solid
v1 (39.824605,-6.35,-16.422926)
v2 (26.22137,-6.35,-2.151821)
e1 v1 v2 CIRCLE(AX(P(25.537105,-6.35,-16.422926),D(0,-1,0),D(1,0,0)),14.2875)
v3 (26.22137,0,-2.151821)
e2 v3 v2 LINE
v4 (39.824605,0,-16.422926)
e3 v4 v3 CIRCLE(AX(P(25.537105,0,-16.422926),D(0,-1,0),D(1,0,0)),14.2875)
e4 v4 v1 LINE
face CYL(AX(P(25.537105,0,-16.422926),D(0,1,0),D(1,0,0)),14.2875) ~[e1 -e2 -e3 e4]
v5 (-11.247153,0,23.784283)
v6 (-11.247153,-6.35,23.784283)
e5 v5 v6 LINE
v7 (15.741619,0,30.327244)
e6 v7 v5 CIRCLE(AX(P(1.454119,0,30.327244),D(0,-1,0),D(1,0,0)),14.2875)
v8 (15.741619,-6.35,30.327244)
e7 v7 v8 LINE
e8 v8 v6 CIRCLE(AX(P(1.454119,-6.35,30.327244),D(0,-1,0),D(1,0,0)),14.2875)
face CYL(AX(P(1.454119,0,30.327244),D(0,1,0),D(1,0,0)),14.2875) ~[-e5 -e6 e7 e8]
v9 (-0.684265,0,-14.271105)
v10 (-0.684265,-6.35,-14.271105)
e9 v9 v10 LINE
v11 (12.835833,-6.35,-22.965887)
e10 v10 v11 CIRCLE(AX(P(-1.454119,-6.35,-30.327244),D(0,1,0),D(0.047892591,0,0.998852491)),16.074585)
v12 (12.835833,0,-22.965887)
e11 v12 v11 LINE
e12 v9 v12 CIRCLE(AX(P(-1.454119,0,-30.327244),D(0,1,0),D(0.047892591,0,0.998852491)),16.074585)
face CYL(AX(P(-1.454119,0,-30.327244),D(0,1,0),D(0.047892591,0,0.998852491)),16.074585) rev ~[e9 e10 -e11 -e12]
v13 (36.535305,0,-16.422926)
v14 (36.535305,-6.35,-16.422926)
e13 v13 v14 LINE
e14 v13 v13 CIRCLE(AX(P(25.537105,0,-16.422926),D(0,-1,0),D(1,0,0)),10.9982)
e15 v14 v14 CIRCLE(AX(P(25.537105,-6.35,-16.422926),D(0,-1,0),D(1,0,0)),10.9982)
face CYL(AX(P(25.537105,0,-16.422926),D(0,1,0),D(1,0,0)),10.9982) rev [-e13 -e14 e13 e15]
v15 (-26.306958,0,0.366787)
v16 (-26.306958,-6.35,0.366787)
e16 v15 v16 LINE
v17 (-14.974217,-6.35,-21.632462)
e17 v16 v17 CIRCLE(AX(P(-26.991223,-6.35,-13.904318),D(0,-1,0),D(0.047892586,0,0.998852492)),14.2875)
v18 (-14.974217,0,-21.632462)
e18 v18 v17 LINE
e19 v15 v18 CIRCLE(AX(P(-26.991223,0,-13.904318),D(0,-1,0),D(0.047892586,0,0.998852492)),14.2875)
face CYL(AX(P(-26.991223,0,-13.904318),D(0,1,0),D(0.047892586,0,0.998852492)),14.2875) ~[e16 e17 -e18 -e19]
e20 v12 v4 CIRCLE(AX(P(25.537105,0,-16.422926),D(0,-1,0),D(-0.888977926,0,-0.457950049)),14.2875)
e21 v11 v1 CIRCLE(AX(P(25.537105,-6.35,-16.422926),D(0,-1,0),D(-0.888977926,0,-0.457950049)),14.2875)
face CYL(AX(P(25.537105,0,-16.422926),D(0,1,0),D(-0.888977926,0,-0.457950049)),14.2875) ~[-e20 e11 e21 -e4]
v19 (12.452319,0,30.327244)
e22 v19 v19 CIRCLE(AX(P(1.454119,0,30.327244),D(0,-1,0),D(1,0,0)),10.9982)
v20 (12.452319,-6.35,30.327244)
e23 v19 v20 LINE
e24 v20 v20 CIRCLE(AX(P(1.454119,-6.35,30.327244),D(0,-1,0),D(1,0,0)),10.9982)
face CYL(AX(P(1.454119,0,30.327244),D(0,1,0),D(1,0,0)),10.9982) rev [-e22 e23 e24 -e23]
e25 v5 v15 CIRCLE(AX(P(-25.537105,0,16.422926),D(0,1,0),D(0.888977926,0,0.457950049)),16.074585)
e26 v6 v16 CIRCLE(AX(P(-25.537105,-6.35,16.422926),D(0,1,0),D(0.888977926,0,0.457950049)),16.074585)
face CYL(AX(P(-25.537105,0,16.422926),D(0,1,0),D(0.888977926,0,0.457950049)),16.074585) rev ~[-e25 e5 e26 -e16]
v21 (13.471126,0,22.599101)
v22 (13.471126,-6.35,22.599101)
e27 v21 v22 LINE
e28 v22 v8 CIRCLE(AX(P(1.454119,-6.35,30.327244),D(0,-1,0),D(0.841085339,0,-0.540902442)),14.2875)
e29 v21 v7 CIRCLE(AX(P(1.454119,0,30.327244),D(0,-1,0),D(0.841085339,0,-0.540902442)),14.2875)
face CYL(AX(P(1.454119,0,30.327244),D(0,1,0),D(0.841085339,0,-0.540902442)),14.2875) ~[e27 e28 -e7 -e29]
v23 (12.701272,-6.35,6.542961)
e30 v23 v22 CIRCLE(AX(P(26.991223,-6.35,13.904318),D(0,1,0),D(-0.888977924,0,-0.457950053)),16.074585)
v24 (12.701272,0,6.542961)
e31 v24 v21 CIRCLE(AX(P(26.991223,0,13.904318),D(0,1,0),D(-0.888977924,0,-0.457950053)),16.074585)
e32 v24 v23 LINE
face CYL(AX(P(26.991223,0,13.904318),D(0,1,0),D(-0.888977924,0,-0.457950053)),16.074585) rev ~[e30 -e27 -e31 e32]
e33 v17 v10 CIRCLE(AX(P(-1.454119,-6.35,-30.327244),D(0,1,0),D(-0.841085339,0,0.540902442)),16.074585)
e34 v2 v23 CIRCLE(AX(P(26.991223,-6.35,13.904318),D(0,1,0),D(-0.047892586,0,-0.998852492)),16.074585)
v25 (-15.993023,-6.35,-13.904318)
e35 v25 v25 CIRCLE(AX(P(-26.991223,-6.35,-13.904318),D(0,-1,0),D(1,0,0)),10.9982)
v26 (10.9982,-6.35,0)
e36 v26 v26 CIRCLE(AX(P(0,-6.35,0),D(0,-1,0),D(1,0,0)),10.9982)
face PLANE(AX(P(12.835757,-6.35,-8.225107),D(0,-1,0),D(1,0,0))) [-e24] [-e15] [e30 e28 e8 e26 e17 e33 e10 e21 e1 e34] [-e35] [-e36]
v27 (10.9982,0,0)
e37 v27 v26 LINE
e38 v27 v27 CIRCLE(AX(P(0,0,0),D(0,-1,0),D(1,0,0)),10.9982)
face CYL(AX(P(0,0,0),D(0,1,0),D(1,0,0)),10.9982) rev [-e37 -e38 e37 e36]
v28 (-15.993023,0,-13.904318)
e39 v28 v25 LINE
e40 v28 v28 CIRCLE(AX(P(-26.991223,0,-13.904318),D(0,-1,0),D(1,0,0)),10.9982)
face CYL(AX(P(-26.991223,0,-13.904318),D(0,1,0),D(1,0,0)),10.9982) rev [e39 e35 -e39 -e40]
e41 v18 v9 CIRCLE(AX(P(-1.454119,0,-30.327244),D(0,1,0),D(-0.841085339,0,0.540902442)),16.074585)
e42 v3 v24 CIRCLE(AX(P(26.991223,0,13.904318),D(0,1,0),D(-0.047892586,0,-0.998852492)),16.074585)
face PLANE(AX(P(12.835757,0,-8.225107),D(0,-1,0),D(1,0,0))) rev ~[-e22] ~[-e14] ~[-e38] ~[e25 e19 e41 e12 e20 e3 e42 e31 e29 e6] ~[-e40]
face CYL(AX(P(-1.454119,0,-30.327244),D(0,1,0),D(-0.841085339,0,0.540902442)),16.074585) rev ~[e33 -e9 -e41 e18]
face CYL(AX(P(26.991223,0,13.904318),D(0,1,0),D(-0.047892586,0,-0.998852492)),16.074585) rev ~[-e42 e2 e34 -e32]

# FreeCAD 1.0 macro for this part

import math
import FreeCAD as App
import Part
import Sketcher
from FreeCAD import Vector
Q = App.Units.Quantity

doc = App.newDocument("Part")
body = doc.addObject("PartDesign::Body", "Body")

# Sketch on XZ plane
sketch1 = doc.addObject("Sketcher::SketchObject", "Sketch")
body.addObject(sketch1)
sketch1.AttachmentSupport = (doc.XZ_Plane, [""])
sketch1.MapMode = "FlatFace"
sketch1.addGeometry(Part.ArcOfCircle(Part.Circle(Vector(26.991223, 13.904318, 0), Vector(0, 0, 1), 16.074585), math.radians(-152.745093), math.radians(-92.745093)), False)
sketch1.addGeometry(Part.ArcOfCircle(Part.Circle(Vector(26.991223, 13.904318, 0), Vector(0, 0, 1), 16.074585), math.radians(147.254907), math.radians(207.254907)), False)
sketch1.addGeometry(Part.ArcOfCircle(Part.Circle(Vector(1.454119, 30.327244, 0), Vector(0, 0, 1), 14.2875), math.radians(-32.745093), math.radians(0)), False)
sketch1.addGeometry(Part.ArcOfCircle(Part.Circle(Vector(1.454119, 30.327244, 0), Vector(0, 0, 1), 14.2875), math.radians(0), math.radians(207.254907)), False)
sketch1.addGeometry(Part.ArcOfCircle(Part.Circle(Vector(-25.537105, 16.422926, 0), Vector(0, 0, 1), 16.074585), math.radians(-92.745093), math.radians(27.254907)), False)
sketch1.addGeometry(Part.ArcOfCircle(Part.Circle(Vector(-26.991223, -13.904318, 0), Vector(0, 0, 1), 14.2875), math.radians(87.254907), math.radians(327.254907)), False)
sketch1.addGeometry(Part.ArcOfCircle(Part.Circle(Vector(-1.454119, -30.327244, 0), Vector(0, 0, 1), 16.074585), math.radians(87.254907), math.radians(147.254907)), False)
sketch1.addGeometry(Part.ArcOfCircle(Part.Circle(Vector(-1.454119, -30.327244, 0), Vector(0, 0, 1), 16.074585), math.radians(27.254907), math.radians(87.254907)), False)
sketch1.addGeometry(Part.ArcOfCircle(Part.Circle(Vector(25.537105, -16.422926, 0), Vector(0, 0, 1), 14.2875), math.radians(-152.745093), math.radians(0)), False)
sketch1.addGeometry(Part.ArcOfCircle(Part.Circle(Vector(25.537105, -16.422926, 0), Vector(0, 0, 1), 14.2875), math.radians(0), math.radians(87.254907)), False)
sketch1.addGeometry(Part.Circle(Vector(-26.991223, -13.904318, 0), Vector(0, 0, 1), 10.9982), False)
sketch1.addGeometry(Part.Circle(Vector(25.537105, -16.422926, 0), Vector(0, 0, 1), 10.9982), False)
sketch1.addGeometry(Part.Circle(Vector(0, 0, 0), Vector(0, 0, 1), 10.9982), False)
sketch1.addGeometry(Part.Circle(Vector(1.454119, 30.327244, 0), Vector(0, 0, 1), 10.9982), False)
sketch1.addConstraint(Sketcher.Constraint("Tangent", 0, 1, 1, 2))
sketch1.addConstraint(Sketcher.Constraint("Tangent", 1, 1, 2, 1))
sketch1.addConstraint(Sketcher.Constraint("Tangent", 2, 2, 3, 1))
sketch1.addConstraint(Sketcher.Constraint("Tangent", 3, 2, 4, 2))
sketch1.addConstraint(Sketcher.Constraint("Tangent", 4, 1, 5, 1))
sketch1.addConstraint(Sketcher.Constraint("Tangent", 5, 2, 6, 2))
sketch1.addConstraint(Sketcher.Constraint("Tangent", 6, 1, 7, 2))
sketch1.addConstraint(Sketcher.Constraint("Tangent", 7, 1, 8, 1))
sketch1.addConstraint(Sketcher.Constraint("Tangent", 8, 2, 9, 1))
sketch1.addConstraint(Sketcher.Constraint("Tangent", 9, 2, 0, 2))
sketch1.addConstraint(Sketcher.Constraint("Coincident", 12, 3, -1, 1))
sketch1.addConstraint(Sketcher.Constraint("Coincident", 10, 3, 5, 3))
sketch1.addConstraint(Sketcher.Constraint("Coincident", 11, 3, 8, 3))
sketch1.addConstraint(Sketcher.Constraint("Coincident", 13, 3, 2, 3))
sketch1.addConstraint(Sketcher.Constraint("Equal", 0, 1))
sketch1.addConstraint(Sketcher.Constraint("Equal", 2, 3))
sketch1.addConstraint(Sketcher.Constraint("Equal", 1, 4))
sketch1.addConstraint(Sketcher.Constraint("Equal", 3, 5))
sketch1.addConstraint(Sketcher.Constraint("Equal", 4, 6))
sketch1.addConstraint(Sketcher.Constraint("Equal", 6, 7))
sketch1.addConstraint(Sketcher.Constraint("Equal", 5, 8))
sketch1.addConstraint(Sketcher.Constraint("Equal", 8, 9))
sketch1.addConstraint(Sketcher.Constraint("Equal", 10, 11))
sketch1.addConstraint(Sketcher.Constraint("Equal", 11, 12))
sketch1.addConstraint(Sketcher.Constraint("Equal", 12, 13))
sketch1.addConstraint(Sketcher.Constraint("Symmetric", 0, 3, 5, 3, -1, 1))
sketch1.addConstraint(Sketcher.Constraint("Horizontal", 13, 3, 2, 2))
sketch1.addConstraint(Sketcher.Constraint("Horizontal", 11, 3, 8, 2))
sketch1.addConstraint(Sketcher.Constraint("Diameter", 10, Q("0.866 in")))
sketch1.addConstraint(Sketcher.Constraint("Radius", 2, Q("0.5625 in")))
sketch1.addConstraint(Sketcher.Constraint("Radius", 0, 16.074585))
sketch1.addConstraint(Sketcher.Constraint("DistanceY", 5, 3, 2, 3, Q("1.7414001 in")))
sketch1.addConstraint(Sketcher.Constraint("DistanceY", 6, 3, 0, 3, Q("1.7414001 in")))
sketch1.addConstraint(Sketcher.Constraint("DistanceY", -1, 1, 0, 3, 13.904318))
sketch1.addConstraint(Sketcher.Constraint("DistanceX", -1, 1, 2, 3, 1.454119))
sketch1.addConstraint(Sketcher.Constraint("DistanceY", -1, 1, 0, 1, 6.542961))
sketch1.addConstraint(Sketcher.Constraint("DistanceY", 7, 3, 6, 1, 16.056139))
pad1 = doc.addObject("PartDesign::Pad", "Pad")
body.addObject(pad1)
pad1.Profile = sketch1
pad1.Length = Q("0.25 in")

doc.recompute()
